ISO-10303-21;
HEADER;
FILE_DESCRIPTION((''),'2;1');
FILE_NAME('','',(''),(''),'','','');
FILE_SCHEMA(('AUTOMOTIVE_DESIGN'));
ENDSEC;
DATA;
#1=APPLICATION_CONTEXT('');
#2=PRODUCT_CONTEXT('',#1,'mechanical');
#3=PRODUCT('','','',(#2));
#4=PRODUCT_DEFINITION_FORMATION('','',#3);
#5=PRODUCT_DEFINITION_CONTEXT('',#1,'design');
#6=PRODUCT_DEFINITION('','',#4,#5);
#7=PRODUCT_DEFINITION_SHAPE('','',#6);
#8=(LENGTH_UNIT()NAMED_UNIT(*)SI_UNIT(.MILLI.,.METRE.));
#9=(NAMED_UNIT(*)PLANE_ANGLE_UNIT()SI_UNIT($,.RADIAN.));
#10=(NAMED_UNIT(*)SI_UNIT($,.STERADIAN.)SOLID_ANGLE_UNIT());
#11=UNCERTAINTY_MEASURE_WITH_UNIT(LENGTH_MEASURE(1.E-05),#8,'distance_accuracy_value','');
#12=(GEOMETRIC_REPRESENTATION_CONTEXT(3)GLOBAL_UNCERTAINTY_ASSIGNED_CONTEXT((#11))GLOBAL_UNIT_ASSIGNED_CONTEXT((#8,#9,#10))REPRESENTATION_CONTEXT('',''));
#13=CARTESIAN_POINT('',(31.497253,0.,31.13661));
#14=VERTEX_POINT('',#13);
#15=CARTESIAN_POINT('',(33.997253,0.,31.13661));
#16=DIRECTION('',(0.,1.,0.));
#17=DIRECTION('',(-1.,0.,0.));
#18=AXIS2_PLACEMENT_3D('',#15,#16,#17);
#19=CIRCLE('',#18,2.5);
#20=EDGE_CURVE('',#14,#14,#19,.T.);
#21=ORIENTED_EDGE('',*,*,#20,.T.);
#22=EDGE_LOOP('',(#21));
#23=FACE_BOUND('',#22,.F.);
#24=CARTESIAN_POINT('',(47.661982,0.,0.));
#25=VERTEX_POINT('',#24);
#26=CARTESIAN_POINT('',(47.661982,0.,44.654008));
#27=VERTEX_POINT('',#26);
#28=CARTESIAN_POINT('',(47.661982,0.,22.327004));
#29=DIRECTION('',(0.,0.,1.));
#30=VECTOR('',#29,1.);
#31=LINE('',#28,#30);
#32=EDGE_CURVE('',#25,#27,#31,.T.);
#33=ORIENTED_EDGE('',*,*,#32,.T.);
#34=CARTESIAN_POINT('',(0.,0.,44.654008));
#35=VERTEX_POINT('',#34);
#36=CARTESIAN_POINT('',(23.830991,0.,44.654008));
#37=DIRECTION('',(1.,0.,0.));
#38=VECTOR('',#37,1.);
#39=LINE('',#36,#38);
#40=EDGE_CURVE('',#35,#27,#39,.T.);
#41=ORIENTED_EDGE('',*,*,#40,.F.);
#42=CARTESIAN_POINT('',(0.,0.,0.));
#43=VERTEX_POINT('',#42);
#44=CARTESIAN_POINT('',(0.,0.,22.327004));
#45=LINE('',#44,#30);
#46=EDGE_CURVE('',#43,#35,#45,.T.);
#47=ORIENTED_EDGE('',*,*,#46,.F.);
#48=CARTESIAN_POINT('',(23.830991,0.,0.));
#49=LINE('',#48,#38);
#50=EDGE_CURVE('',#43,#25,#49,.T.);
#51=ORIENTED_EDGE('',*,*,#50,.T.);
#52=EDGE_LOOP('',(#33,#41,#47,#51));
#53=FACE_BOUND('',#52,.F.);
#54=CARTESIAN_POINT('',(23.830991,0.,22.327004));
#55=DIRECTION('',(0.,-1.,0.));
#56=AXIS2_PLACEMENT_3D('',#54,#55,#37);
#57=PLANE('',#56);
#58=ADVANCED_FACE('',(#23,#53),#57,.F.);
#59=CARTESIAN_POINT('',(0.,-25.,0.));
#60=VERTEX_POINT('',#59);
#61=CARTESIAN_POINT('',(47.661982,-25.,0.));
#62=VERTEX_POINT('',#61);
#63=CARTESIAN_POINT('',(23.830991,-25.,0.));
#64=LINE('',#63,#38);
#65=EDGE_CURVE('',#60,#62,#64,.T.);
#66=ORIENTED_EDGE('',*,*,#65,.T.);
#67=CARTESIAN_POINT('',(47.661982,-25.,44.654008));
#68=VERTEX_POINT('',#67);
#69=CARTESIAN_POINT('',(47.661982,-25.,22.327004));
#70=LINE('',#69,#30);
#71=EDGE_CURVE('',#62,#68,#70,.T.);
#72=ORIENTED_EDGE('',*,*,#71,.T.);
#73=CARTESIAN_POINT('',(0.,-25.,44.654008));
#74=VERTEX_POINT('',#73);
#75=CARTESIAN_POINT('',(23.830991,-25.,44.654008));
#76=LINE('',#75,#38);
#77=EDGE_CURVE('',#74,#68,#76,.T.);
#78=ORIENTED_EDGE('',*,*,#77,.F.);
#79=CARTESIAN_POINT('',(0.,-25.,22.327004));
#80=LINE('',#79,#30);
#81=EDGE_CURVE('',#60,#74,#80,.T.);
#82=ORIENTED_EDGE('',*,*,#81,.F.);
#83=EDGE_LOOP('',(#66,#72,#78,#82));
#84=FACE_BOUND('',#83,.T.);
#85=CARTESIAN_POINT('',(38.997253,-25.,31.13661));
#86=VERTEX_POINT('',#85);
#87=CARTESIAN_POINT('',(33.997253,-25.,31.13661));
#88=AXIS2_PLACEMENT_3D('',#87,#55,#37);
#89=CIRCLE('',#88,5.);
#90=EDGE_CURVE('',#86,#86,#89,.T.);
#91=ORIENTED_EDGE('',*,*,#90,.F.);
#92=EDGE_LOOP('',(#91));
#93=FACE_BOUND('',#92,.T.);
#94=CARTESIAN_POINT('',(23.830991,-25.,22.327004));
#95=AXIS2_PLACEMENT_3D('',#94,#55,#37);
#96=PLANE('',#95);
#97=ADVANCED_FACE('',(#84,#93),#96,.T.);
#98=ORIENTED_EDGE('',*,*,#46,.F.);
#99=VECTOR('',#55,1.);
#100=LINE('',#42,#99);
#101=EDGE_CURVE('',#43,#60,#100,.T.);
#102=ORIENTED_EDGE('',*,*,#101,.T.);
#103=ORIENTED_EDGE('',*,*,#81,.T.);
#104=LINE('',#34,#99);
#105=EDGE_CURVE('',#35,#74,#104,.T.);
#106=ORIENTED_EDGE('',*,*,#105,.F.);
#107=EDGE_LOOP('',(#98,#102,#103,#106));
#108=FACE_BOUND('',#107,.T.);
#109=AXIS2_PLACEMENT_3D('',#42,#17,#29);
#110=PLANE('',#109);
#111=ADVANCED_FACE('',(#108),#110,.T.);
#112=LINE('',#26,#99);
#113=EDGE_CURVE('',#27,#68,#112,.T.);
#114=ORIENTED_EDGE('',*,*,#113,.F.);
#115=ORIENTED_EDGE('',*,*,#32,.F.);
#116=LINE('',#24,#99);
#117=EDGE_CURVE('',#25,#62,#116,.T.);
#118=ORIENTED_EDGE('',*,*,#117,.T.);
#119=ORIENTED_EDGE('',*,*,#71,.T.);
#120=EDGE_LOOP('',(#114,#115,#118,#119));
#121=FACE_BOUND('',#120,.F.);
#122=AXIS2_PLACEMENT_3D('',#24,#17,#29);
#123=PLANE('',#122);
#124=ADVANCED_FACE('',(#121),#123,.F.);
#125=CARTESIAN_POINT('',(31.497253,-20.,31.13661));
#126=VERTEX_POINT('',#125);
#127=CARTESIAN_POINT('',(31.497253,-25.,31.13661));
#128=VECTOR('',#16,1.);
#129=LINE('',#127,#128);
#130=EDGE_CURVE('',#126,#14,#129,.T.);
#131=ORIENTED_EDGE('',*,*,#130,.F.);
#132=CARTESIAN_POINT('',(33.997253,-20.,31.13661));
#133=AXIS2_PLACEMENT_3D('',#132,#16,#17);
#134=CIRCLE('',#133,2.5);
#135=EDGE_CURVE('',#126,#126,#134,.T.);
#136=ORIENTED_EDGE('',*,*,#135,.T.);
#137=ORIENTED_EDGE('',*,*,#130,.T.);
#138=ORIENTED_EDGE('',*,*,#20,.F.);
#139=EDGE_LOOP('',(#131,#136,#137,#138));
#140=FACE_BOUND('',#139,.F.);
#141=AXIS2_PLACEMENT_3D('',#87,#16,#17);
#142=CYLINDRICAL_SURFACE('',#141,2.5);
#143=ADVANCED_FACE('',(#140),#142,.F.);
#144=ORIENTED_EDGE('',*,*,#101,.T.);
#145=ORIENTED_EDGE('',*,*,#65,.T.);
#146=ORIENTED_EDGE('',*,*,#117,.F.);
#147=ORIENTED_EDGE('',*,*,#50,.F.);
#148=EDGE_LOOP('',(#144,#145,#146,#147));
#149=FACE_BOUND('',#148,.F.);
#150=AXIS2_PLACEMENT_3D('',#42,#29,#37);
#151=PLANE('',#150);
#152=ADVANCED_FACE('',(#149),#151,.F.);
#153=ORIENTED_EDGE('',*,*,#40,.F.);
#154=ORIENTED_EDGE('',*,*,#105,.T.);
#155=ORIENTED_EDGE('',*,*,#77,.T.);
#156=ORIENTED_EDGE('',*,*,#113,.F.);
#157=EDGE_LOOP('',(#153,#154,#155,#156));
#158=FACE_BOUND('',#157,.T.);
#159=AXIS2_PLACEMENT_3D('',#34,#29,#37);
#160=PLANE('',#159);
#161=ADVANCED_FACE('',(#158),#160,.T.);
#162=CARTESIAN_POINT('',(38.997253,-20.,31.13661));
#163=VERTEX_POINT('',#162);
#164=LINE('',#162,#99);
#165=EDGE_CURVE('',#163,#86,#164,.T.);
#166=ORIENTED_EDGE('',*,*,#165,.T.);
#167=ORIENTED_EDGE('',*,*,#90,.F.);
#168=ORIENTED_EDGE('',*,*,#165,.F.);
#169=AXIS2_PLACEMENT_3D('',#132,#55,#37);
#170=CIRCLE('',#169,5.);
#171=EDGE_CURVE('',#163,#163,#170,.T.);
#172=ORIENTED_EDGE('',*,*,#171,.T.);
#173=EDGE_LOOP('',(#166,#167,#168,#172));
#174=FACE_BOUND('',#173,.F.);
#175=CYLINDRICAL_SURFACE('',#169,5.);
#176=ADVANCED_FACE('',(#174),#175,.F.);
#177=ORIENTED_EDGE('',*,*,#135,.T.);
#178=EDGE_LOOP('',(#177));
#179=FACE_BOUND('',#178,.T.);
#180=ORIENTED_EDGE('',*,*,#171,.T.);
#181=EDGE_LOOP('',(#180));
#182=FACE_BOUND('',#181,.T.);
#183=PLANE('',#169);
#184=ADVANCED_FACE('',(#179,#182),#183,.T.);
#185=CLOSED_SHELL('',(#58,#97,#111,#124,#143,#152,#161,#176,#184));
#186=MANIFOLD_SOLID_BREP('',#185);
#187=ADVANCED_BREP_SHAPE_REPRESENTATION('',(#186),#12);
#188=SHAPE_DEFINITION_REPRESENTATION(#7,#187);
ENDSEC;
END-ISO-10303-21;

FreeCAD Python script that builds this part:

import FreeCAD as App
import Part
import Sketcher
from FreeCAD import Vector
Q = App.Units.Quantity


def add_polygon(sketch, points):
    """Adds a closed chain of lines whose ends are joined by coincident constraints."""
    first, n = sketch.GeometryCount, len(points)
    for a, b in zip(points, points[1:] + points[:1]):
        sketch.addGeometry(Part.LineSegment(App.Vector(*a, 0), App.Vector(*b, 0)), False)
    for i in range(n):
        sketch.addConstraint(Sketcher.Constraint("Coincident", first + i, 2, first + (i + 1) % n, 1))

doc = App.newDocument("Part")
body = doc.addObject("PartDesign::Body", "Body")

# Sketch on XZ plane
sketch1 = doc.addObject("Sketcher::SketchObject", "Sketch")
body.addObject(sketch1)
sketch1.AttachmentSupport = (doc.XZ_Plane, [""])
sketch1.MapMode = "FlatFace"
add_polygon(sketch1, [(0, 45), (0, 0), (48, 0), (48, 45)])  # lines 0-3
sketch1.addConstraint([
    Sketcher.Constraint("Vertical", 0),
    Sketcher.Constraint("Horizontal", 1),
    Sketcher.Constraint("Vertical", 2),
    Sketcher.Constraint("Horizontal", 3),
    Sketcher.Constraint("Coincident", 0, 2, -1, 1),
    Sketcher.Constraint("DistanceX", 1, 1, 1, 2, Q("47.661982 mm")),
    Sketcher.Constraint("DistanceY", 0, 2, 0, 1, Q("44.654008 mm")),
])
pad1 = doc.addObject("PartDesign::Pad", "Pad")
body.addObject(pad1)
pad1.Profile = sketch1
pad1.Length = 25

# Sketch on XZ plane
sketch2 = doc.addObject("Sketcher::SketchObject", "Sketch001")
body.addObject(sketch2)
sketch2.AttachmentSupport = (doc.XZ_Plane, [""])
sketch2.MapMode = "FlatFace"
sketch2.AttachmentOffset = App.Placement(Vector(0, 0, 25), App.Rotation())
sketch2.addGeometry(Part.Circle(Vector(34, 31.1, 0), Vector(0, 0, 1), 2.5), False)
sketch2.addConstraint([
    Sketcher.Constraint("Diameter", 0, Q("5 mm")),
    Sketcher.Constraint("DistanceY", -1, 1, 0, 3, Q("31.13661 mm")),
    Sketcher.Constraint("DistanceX", -1, 1, 0, 3, Q("33.997253 mm")),
])
doc.recompute()
hole = doc.addObject("PartDesign::Hole", "Hole")
body.addObject(hole)
hole.Profile = sketch2
hole.ThreadType = "None"
hole.Diameter = 5
hole.DepthType = "ThroughAll"
hole.HoleCutType = "Counterbore"
hole.HoleCutDiameter = 10
hole.HoleCutDepth = 5

doc.recompute()
